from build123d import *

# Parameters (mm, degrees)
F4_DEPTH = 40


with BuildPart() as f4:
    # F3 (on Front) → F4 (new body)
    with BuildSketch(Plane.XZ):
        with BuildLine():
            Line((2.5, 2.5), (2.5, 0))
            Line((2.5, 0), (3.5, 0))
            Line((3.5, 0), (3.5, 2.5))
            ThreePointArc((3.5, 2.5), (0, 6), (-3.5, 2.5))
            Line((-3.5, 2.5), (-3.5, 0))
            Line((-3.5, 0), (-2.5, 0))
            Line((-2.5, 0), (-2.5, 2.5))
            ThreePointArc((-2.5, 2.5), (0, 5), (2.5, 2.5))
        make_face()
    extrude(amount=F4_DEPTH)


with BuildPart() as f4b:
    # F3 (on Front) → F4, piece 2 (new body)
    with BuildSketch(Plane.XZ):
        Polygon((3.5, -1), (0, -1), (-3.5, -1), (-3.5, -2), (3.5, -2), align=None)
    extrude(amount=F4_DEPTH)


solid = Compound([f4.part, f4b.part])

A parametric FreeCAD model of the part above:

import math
import FreeCAD as App
import Part
import Sketcher
from FreeCAD import Vector
Q = App.Units.Quantity

doc = App.newDocument("Part")
body = doc.addObject("PartDesign::Body", "Body")

# Sketch on XZ plane
sketch1 = body.newObject("Sketcher::SketchObject", "Sketch")
sketch1.AttachmentSupport = (doc.getObject("XZ_Plane"), [""])
sketch1.MapMode = "FlatFace"
sketch1.addGeometry([
    Part.LineSegment(Vector(2.5, 2.5, 0), Vector(2.5, 0, 0)),  # 0
    Part.LineSegment(Vector(2.5, 0, 0), Vector(3.5, 0, 0)),  # 1
    Part.LineSegment(Vector(3.5, 0, 0), Vector(3.5, 2.5, 0)),  # 2
    Part.ArcOfCircle(Part.Circle(Vector(0, 2.5, 0), Vector(0, 0, 1), 3.5), math.radians(0), math.radians(180)),  # 3
    Part.LineSegment(Vector(-3.5, 2.5, 0), Vector(-3.5, 0, 0)),  # 4
    Part.LineSegment(Vector(-3.5, 0, 0), Vector(-2.5, 0, 0)),  # 5
    Part.LineSegment(Vector(-2.5, 0, 0), Vector(-2.5, 2.5, 0)),  # 6
    Part.ArcOfCircle(Part.Circle(Vector(0, 2.5, 0), Vector(0, 0, 1), 2.5), math.radians(0), math.radians(180)),  # 7
], False)
sketch1.addConstraint([
    Sketcher.Constraint("Coincident", 0, 2, 1, 1),
    Sketcher.Constraint("Coincident", 1, 2, 2, 1),
    Sketcher.Constraint("Tangent", 2, 2, 3, 1),
    Sketcher.Constraint("Tangent", 3, 2, 4, 1),
    Sketcher.Constraint("Coincident", 4, 2, 5, 1),
    Sketcher.Constraint("Coincident", 5, 2, 6, 1),
    Sketcher.Constraint("Tangent", 6, 2, 7, 2),
    Sketcher.Constraint("Tangent", 7, 1, 0, 1),
    Sketcher.Constraint("Vertical", 0),
    Sketcher.Constraint("Horizontal", 1),
    Sketcher.Constraint("Vertical", 2),
    Sketcher.Constraint("Vertical", 4),
    Sketcher.Constraint("Horizontal", 5),
    Sketcher.Constraint("Vertical", 6),
    Sketcher.Constraint("Coincident", 7, 3, 3, 3),
    Sketcher.Constraint("Symmetric", 1, 2, 4, 2, -1, 1),
    Sketcher.Constraint("PointOnObject", 0, 2, -1),
    Sketcher.Constraint("Radius", 3, Q("3.5 mm")),
    Sketcher.Constraint("Radius", 7, Q("2.5 mm")),
    Sketcher.Constraint("DistanceY", 0, 2, 0, 1, Q("2.5 mm")),
])
pad1 = body.newObject("PartDesign::Pad", "Pad")
pad1.Profile = sketch1
pad1.Length = 40
body2 = doc.addObject("PartDesign::Body", "Body001")

# Sketch on XZ plane
sketch2 = body2.newObject("Sketcher::SketchObject", "Sketch001")
sketch2.AttachmentSupport = (doc.getObject("XZ_Plane001"), [""])
sketch2.MapMode = "FlatFace"
sketch2.addGeometry([
    Part.LineSegment(Vector(3.5, -1, 0), Vector(-3.5, -1, 0)),
    Part.LineSegment(Vector(-3.5, -1, 0), Vector(-3.5, -2, 0)),
    Part.LineSegment(Vector(-3.5, -2, 0), Vector(3.5, -2, 0)),
    Part.LineSegment(Vector(3.5, -2, 0), Vector(3.5, -1, 0)),
], False)
sketch2.addConstraint([
    Sketcher.Constraint("Coincident", 0, 2, 1, 1),
    Sketcher.Constraint("Coincident", 1, 2, 2, 1),
    Sketcher.Constraint("Coincident", 2, 2, 3, 1),
    Sketcher.Constraint("Coincident", 3, 2, 0, 1),
    Sketcher.Constraint("Horizontal", 0),
    Sketcher.Constraint("Vertical", 1),
    Sketcher.Constraint("Horizontal", 2),
    Sketcher.Constraint("Vertical", 3),
    Sketcher.Constraint("DistanceX", 0, 2, 0, 1, Q("7 mm")),
    Sketcher.Constraint("DistanceY", 1, 2, 1, 1, Q("1 mm")),
    Sketcher.Constraint("DistanceY", 0, 2, -1, 1, Q("1 mm")),
    Sketcher.Constraint("DistanceX", 0, 2, -1, 1, Q("3.5 mm")),
])
pad2 = body2.newObject("PartDesign::Pad", "Pad001")
pad2.Profile = sketch2
pad2.Length = 40

doc.recompute()
